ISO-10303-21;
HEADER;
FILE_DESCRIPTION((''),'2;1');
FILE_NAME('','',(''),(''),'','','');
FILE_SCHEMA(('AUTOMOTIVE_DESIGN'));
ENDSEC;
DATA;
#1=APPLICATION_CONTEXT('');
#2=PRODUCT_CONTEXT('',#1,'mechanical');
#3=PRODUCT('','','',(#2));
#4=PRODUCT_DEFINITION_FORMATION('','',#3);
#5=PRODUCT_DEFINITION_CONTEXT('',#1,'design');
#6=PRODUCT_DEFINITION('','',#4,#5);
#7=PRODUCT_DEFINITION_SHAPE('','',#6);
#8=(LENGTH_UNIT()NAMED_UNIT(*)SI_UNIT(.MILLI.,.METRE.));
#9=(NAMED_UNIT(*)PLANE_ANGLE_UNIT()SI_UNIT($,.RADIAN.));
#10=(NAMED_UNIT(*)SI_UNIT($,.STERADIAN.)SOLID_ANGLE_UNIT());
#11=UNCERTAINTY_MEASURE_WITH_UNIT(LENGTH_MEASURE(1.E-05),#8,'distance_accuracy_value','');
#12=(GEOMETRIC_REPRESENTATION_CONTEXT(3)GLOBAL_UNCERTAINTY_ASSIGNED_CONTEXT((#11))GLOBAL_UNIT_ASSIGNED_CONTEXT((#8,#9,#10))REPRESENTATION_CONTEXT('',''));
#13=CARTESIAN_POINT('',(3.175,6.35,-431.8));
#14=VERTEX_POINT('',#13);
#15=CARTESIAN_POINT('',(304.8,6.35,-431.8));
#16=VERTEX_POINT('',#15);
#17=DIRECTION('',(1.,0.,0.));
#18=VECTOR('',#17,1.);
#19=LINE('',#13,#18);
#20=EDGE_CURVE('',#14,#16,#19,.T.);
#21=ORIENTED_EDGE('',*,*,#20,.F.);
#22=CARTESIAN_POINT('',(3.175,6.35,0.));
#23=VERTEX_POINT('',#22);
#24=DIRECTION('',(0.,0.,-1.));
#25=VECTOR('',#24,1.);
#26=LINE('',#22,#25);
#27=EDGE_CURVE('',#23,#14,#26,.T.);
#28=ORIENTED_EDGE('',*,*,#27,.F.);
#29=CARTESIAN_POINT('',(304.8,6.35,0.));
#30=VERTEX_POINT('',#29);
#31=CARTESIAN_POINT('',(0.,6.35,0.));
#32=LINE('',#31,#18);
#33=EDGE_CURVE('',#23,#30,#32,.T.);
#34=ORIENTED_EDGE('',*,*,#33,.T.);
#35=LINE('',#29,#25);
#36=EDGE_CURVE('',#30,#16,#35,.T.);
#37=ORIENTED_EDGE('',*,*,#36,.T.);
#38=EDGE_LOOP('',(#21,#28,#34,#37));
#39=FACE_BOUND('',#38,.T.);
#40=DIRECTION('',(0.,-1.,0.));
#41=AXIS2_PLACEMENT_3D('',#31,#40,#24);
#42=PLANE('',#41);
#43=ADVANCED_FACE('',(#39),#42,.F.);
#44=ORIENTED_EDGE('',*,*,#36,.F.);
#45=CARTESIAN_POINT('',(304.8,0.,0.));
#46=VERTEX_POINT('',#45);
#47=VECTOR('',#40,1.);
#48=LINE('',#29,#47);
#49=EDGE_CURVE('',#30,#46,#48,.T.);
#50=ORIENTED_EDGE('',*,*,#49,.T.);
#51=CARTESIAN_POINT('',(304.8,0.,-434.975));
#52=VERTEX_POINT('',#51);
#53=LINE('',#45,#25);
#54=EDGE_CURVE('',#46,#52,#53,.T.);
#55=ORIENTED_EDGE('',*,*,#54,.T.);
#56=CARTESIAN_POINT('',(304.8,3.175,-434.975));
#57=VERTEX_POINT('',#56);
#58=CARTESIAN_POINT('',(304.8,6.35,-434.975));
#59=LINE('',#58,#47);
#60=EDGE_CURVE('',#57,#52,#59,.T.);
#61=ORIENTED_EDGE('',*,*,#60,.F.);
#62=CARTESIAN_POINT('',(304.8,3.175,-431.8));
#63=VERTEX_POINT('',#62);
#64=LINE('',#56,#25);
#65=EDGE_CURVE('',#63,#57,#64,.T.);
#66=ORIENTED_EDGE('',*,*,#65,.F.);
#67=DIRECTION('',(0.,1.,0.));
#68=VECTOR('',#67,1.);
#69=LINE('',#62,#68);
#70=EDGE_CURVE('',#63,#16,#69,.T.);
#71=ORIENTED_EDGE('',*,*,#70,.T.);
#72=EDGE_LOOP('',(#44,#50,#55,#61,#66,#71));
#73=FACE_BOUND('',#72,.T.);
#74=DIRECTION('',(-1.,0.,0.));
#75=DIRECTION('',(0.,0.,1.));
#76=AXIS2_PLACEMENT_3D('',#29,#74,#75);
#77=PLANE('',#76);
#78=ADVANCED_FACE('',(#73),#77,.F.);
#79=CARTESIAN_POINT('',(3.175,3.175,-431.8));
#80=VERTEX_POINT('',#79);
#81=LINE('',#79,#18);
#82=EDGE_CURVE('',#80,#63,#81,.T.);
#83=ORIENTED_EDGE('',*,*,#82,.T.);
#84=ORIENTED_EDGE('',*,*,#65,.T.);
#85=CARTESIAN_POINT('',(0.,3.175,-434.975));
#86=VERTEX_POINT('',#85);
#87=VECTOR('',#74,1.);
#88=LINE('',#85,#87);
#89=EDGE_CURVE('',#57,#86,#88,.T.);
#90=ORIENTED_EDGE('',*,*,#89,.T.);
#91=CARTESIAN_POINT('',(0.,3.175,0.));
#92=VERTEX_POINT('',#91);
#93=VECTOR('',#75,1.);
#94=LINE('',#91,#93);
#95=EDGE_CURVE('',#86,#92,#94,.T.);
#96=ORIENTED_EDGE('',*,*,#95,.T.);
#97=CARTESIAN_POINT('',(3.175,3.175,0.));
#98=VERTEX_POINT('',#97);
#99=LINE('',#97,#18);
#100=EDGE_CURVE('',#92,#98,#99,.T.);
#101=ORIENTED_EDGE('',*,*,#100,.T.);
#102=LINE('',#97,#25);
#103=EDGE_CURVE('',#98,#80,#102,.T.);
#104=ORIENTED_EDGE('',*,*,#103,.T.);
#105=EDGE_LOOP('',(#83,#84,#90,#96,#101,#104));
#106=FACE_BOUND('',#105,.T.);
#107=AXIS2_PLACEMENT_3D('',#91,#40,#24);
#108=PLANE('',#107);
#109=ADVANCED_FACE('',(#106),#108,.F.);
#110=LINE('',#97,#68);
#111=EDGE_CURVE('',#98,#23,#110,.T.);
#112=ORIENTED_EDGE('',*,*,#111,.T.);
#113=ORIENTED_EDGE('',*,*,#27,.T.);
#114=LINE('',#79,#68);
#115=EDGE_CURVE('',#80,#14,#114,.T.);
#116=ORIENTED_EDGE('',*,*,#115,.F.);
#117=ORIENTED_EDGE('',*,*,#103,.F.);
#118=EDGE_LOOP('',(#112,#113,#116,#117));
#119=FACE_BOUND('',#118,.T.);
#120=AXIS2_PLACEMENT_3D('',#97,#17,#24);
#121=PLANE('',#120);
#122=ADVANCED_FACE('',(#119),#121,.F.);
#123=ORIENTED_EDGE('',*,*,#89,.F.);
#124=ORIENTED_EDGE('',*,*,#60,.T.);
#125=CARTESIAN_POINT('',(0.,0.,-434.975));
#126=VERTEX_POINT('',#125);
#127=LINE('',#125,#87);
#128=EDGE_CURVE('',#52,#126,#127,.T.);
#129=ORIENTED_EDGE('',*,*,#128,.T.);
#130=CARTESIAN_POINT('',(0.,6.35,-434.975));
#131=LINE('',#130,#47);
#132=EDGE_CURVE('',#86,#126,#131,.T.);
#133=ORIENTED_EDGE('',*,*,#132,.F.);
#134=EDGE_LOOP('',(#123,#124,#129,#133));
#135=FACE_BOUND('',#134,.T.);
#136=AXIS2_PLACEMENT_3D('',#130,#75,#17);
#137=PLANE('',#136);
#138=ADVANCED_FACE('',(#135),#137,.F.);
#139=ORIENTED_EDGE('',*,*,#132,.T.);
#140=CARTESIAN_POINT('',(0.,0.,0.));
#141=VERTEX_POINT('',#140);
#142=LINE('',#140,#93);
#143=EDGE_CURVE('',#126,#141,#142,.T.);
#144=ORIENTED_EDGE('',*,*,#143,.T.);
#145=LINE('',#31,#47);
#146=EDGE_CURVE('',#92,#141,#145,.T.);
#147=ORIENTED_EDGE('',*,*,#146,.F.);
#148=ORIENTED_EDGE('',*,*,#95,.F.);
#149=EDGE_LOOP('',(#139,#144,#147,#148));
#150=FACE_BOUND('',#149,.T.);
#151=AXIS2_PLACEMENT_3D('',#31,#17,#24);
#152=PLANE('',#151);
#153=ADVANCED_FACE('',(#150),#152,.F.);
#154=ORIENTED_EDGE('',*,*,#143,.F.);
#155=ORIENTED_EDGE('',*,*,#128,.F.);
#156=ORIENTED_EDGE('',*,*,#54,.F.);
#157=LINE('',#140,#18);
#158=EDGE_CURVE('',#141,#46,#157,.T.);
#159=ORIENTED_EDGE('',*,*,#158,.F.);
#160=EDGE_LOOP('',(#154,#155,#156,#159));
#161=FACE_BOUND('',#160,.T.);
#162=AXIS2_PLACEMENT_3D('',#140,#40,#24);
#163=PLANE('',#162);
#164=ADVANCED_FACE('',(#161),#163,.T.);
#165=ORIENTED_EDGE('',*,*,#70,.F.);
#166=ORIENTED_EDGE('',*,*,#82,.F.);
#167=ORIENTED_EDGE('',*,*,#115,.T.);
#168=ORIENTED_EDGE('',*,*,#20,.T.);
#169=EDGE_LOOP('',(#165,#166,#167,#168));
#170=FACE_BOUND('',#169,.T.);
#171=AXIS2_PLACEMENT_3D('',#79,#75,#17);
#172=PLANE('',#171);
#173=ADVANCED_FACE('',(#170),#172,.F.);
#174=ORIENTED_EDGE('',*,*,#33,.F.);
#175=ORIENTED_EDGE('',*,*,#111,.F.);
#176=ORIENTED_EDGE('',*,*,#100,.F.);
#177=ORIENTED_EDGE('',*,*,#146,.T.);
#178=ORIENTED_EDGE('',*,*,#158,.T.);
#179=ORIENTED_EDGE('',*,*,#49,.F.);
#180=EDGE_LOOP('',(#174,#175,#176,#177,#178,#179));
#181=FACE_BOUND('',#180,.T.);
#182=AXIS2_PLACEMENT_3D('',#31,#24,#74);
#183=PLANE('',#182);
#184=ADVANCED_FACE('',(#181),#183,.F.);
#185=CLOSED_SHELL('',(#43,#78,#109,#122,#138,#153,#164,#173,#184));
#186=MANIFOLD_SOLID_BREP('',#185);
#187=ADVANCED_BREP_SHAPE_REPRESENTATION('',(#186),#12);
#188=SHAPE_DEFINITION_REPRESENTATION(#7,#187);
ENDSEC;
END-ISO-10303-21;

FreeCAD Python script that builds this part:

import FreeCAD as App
import Part
import Sketcher
from FreeCAD import Vector
Q = App.Units.Quantity


def add_polygon(sketch, points):
    """Adds a closed chain of lines whose ends are joined by coincident constraints."""
    first, n = sketch.GeometryCount, len(points)
    for a, b in zip(points, points[1:] + points[:1]):
        sketch.addGeometry(Part.LineSegment(App.Vector(*a, 0), App.Vector(*b, 0)), False)
    for i in range(n):
        sketch.addConstraint(Sketcher.Constraint("Coincident", first + i, 2, first + (i + 1) % n, 1))

doc = App.newDocument("Part")
body = doc.addObject("PartDesign::Body", "Body")

sketch1 = body.newObject("Sketcher::SketchObject", "Sketch")
sketch1.AttachmentSupport = (doc.getObject("XZ_Plane"), [""])
sketch1.MapMode = "FlatFace"
add_polygon(sketch1, [(0, -435), (0, 0), (305, 0), (305, -435)])
sketch1.addConstraint(Sketcher.Constraint("Vertical", 0))
sketch1.addConstraint(Sketcher.Constraint("Horizontal", 1))
sketch1.addConstraint(Sketcher.Constraint("Vertical", 2))
sketch1.addConstraint(Sketcher.Constraint("Horizontal", 3))
sketch1.addConstraint(Sketcher.Constraint("Coincident", 0, 2, -1, 1))
sketch1.addConstraint(Sketcher.Constraint("DistanceX", 1, 1, 1, 2, Q("12 in")))
sketch1.addConstraint(Sketcher.Constraint("DistanceY", 0, 1, 0, 2, Q("17.125 in")))
pad1 = body.newObject("PartDesign::Pad", "Pad")
pad1.Profile = sketch1
pad1.Length = Q("0.25 in")
pad1.Reversed = True

sketch2 = body.newObject("Sketcher::SketchObject", "Sketch001")
sketch2.AttachmentSupport = (doc.getObject("XZ_Plane"), [""])
sketch2.MapMode = "FlatFace"
sketch2.AttachmentOffset = App.Placement(Vector(0, 0, -0.25 * 25.4), App.Rotation())
add_polygon(sketch2, [(3.2, 0), (3.2, -431.8), (304.8, -431.8), (304.8, -435), (0, -435), (0, 0)])
sketch2.addConstraint(Sketcher.Constraint("Vertical", 0))
sketch2.addConstraint(Sketcher.Constraint("Horizontal", 1))
sketch2.addConstraint(Sketcher.Constraint("Vertical", 2))
sketch2.addConstraint(Sketcher.Constraint("Horizontal", 3))
sketch2.addConstraint(Sketcher.Constraint("Vertical", 4))
sketch2.addConstraint(Sketcher.Constraint("Horizontal", 5))
sketch2.addConstraint(Sketcher.Constraint("Coincident", 4, 2, -1, 1))
sketch2.addConstraint(Sketcher.Constraint("Equal", 5, 2))
sketch2.addConstraint(Sketcher.Constraint("DistanceX", 3, 2, 3, 1, Q("12 in")))
sketch2.addConstraint(Sketcher.Constraint("DistanceY", 0, 2, 0, 1, Q("17 in")))
sketch2.addConstraint(Sketcher.Constraint("DistanceX", 1, 1, 1, 2, Q("11.875 in")))
pocket1 = body.newObject("PartDesign::Pocket", "Pocket")
pocket1.Profile = sketch2
pocket1.Length = Q("0.125 in")
pocket1.Reversed = True

doc.recompute()
